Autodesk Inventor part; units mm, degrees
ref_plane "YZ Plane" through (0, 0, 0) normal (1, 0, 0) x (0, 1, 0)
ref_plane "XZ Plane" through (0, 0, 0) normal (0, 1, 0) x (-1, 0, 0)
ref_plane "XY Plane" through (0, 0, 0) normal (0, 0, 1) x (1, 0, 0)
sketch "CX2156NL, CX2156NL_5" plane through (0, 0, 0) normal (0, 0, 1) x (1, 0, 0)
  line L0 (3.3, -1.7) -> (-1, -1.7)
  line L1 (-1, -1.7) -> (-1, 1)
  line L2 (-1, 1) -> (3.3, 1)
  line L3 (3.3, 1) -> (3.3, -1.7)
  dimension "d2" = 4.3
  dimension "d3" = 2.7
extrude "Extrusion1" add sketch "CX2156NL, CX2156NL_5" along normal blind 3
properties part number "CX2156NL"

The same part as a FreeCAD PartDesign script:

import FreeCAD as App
import Part
import Sketcher
from FreeCAD import Vector

doc = App.newDocument("Part")
body = doc.addObject("PartDesign::Body", "Body")

sketch1 = body.newObject("Sketcher::SketchObject", "Sketch")
sketch1.AttachmentSupport = (doc.getObject("XY_Plane"), [""])
sketch1.MapMode = "FlatFace"
sketch1.addGeometry(Part.LineSegment(Vector(-1, -1.7, 0), Vector(3.3, -1.7, 0)), False)
sketch1.addGeometry(Part.LineSegment(Vector(3.3, -1.7, 0), Vector(3.3, 1, 0)), False)
sketch1.addGeometry(Part.LineSegment(Vector(3.3, 1, 0), Vector(-1, 1, 0)), False)
sketch1.addGeometry(Part.LineSegment(Vector(-1, 1, 0), Vector(-1, -1.7, 0)), False)
sketch1.addConstraint(Sketcher.Constraint("Coincident", 0, 2, 1, 1))
sketch1.addConstraint(Sketcher.Constraint("Coincident", 1, 2, 2, 1))
sketch1.addConstraint(Sketcher.Constraint("Coincident", 2, 2, 3, 1))
sketch1.addConstraint(Sketcher.Constraint("Coincident", 3, 2, 0, 1))
sketch1.addConstraint(Sketcher.Constraint("Horizontal", 0))
sketch1.addConstraint(Sketcher.Constraint("Vertical", 1))
sketch1.addConstraint(Sketcher.Constraint("Horizontal", 2))
sketch1.addConstraint(Sketcher.Constraint("Vertical", 3))
sketch1.addConstraint(Sketcher.Constraint("DistanceX", 0, 1, 0, 2, 4.3))
sketch1.addConstraint(Sketcher.Constraint("DistanceY", 1, 1, 1, 2, 2.7))
sketch1.addConstraint(Sketcher.Constraint("DistanceY", -1, 1, 1, 2, 1.0))
sketch1.addConstraint(Sketcher.Constraint("DistanceX", 2, 2, -1, 1, 1.0))
pad1 = body.newObject("PartDesign::Pad", "Pad")
pad1.Profile = sketch1
pad1.Length = 3

doc.recompute()
